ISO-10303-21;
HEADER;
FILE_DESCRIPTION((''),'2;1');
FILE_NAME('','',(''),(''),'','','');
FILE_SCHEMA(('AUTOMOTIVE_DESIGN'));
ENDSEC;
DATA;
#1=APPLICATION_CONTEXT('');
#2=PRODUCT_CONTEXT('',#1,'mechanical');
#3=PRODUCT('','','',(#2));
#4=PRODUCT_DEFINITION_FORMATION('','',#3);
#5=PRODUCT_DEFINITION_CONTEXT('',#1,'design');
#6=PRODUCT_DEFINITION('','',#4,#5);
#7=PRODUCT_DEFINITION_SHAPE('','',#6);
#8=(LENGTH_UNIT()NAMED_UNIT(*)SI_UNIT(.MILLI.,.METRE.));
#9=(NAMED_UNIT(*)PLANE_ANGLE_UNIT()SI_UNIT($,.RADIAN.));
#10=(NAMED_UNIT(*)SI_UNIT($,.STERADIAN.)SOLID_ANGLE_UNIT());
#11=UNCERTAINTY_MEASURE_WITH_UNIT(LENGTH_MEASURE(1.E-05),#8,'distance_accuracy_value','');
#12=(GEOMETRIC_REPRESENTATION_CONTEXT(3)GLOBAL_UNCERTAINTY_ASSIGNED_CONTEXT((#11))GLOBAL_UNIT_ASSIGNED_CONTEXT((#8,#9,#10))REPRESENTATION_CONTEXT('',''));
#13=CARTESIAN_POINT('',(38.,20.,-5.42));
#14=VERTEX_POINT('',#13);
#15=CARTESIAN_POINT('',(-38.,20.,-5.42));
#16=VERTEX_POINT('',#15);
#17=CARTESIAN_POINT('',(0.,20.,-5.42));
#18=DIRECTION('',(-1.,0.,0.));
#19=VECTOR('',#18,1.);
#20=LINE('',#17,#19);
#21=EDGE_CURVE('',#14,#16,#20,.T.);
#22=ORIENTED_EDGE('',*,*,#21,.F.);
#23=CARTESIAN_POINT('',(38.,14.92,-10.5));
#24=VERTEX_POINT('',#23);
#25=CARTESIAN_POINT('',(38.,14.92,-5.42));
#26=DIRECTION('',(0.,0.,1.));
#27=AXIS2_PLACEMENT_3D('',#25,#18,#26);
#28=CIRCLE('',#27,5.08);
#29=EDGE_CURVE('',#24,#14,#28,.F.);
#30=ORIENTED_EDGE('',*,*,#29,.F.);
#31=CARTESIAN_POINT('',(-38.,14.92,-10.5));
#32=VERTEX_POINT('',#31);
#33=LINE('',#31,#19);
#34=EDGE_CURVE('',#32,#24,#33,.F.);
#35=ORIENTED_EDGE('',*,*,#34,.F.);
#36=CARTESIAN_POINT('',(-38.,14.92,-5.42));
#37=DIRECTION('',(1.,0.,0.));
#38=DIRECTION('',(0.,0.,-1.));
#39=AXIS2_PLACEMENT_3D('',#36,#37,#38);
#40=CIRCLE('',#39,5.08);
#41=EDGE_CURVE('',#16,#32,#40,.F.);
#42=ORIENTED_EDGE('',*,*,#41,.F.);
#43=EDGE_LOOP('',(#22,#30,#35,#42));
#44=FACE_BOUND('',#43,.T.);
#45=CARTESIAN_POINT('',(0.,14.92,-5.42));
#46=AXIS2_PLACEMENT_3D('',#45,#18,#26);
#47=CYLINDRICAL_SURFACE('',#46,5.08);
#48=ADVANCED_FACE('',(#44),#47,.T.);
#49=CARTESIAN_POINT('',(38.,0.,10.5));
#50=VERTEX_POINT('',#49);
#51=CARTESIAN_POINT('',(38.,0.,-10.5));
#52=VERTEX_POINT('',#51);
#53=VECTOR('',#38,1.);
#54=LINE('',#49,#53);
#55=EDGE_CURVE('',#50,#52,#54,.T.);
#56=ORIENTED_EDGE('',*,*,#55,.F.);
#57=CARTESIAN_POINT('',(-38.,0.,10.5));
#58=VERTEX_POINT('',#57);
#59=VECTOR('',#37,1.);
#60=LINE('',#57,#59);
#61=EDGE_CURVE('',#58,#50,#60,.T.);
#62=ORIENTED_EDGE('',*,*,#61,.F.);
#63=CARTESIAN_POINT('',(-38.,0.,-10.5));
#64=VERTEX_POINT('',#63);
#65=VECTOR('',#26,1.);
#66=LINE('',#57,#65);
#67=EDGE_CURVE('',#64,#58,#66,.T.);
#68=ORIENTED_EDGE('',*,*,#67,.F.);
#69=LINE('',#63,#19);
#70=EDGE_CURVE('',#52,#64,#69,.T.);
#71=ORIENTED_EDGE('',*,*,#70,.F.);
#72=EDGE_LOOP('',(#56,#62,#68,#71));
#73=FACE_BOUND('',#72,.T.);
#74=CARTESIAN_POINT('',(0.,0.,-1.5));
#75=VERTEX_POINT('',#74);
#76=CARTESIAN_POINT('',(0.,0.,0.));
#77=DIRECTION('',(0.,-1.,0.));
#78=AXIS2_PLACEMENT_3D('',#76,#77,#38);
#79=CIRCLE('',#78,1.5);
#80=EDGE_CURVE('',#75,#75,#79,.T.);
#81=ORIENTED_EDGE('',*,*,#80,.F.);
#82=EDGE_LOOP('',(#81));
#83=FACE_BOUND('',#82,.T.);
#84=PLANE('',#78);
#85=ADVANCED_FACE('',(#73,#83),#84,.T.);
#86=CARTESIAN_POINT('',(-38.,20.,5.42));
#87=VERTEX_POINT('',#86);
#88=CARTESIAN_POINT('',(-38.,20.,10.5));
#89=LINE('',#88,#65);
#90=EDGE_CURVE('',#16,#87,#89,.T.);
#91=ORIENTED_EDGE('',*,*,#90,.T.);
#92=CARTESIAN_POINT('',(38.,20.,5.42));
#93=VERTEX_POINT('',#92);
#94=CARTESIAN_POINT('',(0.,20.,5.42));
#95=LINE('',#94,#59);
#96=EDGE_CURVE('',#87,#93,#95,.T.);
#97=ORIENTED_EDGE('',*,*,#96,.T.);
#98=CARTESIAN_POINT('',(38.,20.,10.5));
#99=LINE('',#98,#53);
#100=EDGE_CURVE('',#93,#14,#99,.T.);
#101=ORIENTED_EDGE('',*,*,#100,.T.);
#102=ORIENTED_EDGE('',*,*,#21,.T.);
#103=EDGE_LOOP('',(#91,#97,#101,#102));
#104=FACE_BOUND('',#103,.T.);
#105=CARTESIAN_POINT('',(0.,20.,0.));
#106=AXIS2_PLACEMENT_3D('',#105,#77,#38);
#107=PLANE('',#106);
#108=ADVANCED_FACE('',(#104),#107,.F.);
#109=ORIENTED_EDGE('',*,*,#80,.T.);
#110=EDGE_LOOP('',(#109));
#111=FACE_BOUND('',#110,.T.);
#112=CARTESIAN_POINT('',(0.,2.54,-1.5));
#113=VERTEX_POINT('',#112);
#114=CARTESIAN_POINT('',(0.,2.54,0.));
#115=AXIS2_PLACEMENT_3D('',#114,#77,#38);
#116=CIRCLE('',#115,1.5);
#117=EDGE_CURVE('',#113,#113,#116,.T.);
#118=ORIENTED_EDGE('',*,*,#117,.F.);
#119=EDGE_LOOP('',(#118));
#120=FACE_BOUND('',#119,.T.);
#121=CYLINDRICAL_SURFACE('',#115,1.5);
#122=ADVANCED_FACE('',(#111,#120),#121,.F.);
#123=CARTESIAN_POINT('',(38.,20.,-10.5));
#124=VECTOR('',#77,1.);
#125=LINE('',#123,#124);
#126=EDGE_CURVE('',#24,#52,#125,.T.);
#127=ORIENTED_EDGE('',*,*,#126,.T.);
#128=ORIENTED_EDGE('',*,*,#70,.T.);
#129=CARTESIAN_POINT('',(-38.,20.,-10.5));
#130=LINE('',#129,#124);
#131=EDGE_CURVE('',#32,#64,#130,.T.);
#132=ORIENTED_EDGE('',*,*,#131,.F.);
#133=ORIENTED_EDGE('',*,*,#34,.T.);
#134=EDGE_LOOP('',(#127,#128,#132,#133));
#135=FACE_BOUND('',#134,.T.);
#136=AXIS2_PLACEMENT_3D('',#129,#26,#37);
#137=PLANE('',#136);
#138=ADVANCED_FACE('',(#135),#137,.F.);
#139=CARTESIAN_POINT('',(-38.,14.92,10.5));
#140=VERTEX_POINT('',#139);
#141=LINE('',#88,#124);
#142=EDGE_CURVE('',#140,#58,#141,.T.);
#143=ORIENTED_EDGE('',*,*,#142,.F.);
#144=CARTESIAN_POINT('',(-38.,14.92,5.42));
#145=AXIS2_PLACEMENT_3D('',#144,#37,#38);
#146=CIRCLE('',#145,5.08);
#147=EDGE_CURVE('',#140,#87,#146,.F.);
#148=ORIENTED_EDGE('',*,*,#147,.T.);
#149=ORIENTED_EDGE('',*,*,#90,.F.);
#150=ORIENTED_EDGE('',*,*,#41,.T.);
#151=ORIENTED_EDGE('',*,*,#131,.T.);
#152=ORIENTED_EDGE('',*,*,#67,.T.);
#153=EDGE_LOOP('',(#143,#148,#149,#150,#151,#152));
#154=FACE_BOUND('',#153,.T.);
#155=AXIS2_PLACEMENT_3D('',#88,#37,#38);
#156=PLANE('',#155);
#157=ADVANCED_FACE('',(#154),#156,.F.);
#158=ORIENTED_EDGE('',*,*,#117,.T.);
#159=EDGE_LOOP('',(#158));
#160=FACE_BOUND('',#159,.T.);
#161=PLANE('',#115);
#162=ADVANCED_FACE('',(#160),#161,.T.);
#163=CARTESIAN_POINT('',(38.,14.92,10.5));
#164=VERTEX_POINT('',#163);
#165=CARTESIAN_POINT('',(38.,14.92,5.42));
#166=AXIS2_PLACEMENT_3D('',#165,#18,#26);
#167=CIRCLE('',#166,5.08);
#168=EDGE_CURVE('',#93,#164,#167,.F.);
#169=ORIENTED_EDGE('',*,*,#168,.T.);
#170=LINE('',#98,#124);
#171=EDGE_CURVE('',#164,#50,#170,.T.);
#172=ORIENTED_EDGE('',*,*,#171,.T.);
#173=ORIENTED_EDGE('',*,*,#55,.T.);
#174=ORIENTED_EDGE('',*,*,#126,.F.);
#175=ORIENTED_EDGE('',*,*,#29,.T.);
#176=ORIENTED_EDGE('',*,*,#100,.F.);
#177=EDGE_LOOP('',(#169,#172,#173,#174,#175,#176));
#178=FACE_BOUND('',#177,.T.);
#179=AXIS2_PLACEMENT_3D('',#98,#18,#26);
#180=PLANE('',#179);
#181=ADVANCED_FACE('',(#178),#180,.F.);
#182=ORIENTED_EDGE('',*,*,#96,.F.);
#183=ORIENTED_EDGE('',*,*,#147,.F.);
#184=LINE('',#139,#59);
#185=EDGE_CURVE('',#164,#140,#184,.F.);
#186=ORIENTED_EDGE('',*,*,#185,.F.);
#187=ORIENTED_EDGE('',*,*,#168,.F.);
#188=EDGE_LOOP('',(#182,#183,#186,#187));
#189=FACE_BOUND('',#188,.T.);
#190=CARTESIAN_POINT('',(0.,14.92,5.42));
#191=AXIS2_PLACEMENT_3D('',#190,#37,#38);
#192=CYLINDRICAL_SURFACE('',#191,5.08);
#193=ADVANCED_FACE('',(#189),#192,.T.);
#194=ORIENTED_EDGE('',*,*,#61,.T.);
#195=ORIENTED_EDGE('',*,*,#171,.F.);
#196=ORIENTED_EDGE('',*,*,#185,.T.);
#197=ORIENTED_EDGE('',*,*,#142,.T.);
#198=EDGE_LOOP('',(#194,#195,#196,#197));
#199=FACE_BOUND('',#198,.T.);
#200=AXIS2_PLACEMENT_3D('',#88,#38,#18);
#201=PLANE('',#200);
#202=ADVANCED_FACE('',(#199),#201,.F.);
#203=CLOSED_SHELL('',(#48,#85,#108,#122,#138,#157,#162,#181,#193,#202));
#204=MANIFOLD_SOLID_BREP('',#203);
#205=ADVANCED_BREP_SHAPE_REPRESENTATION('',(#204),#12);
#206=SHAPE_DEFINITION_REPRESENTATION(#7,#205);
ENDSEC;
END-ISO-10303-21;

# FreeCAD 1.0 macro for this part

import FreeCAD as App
import Part
import Sketcher

V = App.Vector


def edges_at(feature, points):
    """Names of the edges that pass closest to the given points."""
    edges = feature.Shape.Edges
    near = lambda p: min(range(len(edges)), key=lambda i: edges[i].distToShape(Part.Vertex(*p))[0])
    return sorted({f"Edge{near(p) + 1}" for p in points})


def add_polygon(sketch, points):
    """Adds a closed chain of lines whose ends are joined by coincident constraints."""
    first, n = sketch.GeometryCount, len(points)
    for a, b in zip(points, points[1:] + points[:1]):
        sketch.addGeometry(Part.LineSegment(App.Vector(*a, 0), App.Vector(*b, 0)), False)
    for i in range(n):
        sketch.addConstraint(Sketcher.Constraint("Coincident", first + i, 2, first + (i + 1) % n, 1))

doc = App.newDocument("Part")
body = doc.addObject("PartDesign::Body", "Body")

# Sketch on XZ plane
sketch1 = body.newObject("Sketcher::SketchObject", "Sketch")
sketch1.AttachmentSupport = (doc.getObject("XZ_Plane"), [""])
sketch1.MapMode = "FlatFace"
add_polygon(sketch1, [(-38, -10), (-38, 10), (38, 10), (38, -10)])  # lines 0-3
sketch1.addConstraint(Sketcher.Constraint("Vertical", 0))
sketch1.addConstraint(Sketcher.Constraint("Horizontal", 1))
sketch1.addConstraint(Sketcher.Constraint("Vertical", 2))
sketch1.addConstraint(Sketcher.Constraint("Horizontal", 3))
sketch1.addConstraint(Sketcher.Constraint("Symmetric", 0, 2, 2, 2, -1, 1))
sketch1.addConstraint(Sketcher.Constraint("DistanceX", 1, 1, 1, 2, 76.0))
sketch1.addConstraint(Sketcher.Constraint("DistanceY", 0, 1, 0, 2, 21.0))
pad1 = body.newObject("PartDesign::Pad", "Pad")
pad1.Profile = sketch1
pad1.Length = 20
pad1.Reversed = True
doc.recompute()

fillet = body.newObject("PartDesign::Fillet", "Fillet")
fillet.Base = (pad1, edges_at(pad1, [(0, 20, 10.5), (0, 20, -10.5)]))
fillet.Radius = 5.08

# Sketch on XZ plane
sketch2 = body.newObject("Sketcher::SketchObject", "Sketch001")
sketch2.AttachmentSupport = (doc.getObject("XZ_Plane"), [""])
sketch2.MapMode = "FlatFace"
sketch2.addGeometry(Part.Circle(V(0, 0, 0), V(0, 0, 1), 1.5), False)
sketch2.addConstraint(Sketcher.Constraint("Coincident", 0, 3, -1, 1))
sketch2.addConstraint(Sketcher.Constraint("Diameter", 0, 3.0))
pocket1 = body.newObject("PartDesign::Pocket", "Pocket")
pocket1.Profile = sketch2
pocket1.Length = 2.54

doc.recompute()
